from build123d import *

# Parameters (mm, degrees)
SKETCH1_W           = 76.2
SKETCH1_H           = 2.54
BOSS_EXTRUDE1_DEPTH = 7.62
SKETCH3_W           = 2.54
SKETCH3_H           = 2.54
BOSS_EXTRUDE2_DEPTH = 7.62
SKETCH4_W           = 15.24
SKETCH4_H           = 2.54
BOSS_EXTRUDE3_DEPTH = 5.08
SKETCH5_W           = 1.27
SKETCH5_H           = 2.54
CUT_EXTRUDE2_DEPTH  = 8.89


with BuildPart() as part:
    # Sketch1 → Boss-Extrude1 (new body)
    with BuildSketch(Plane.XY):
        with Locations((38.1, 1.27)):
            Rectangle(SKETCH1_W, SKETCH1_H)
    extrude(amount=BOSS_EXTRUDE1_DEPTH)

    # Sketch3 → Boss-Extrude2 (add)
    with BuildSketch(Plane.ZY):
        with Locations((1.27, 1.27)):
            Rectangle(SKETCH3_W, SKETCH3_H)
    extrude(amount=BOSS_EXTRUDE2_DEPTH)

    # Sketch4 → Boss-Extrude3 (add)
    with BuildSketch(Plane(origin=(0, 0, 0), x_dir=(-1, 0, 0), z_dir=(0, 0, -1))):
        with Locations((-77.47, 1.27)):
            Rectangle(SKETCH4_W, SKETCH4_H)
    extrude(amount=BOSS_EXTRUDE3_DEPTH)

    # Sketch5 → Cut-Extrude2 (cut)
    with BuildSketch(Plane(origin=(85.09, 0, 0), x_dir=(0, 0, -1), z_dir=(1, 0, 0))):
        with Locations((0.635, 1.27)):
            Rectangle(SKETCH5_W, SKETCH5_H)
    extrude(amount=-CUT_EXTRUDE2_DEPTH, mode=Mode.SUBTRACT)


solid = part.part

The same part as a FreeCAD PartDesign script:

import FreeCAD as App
import Part
import Sketcher
from FreeCAD import Vector
Q = App.Units.Quantity


def add_polygon(sketch, points):
    """Adds a closed chain of lines whose ends are joined by coincident constraints."""
    first, n = sketch.GeometryCount, len(points)
    for a, b in zip(points, points[1:] + points[:1]):
        sketch.addGeometry(Part.LineSegment(App.Vector(*a, 0), App.Vector(*b, 0)), False)
    for i in range(n):
        sketch.addConstraint(Sketcher.Constraint("Coincident", first + i, 2, first + (i + 1) % n, 1))

doc = App.newDocument("Part")
body = doc.addObject("PartDesign::Body", "Body")

sketch1 = body.newObject("Sketcher::SketchObject", "Sketch")
sketch1.AttachmentSupport = (doc.getObject("XY_Plane"), [""])
sketch1.MapMode = "FlatFace"
add_polygon(sketch1, [(0, 2.54), (0, 0), (76.2, 0), (76.2, 2.54)])
sketch1.addConstraint([
    Sketcher.Constraint("Vertical", 0),
    Sketcher.Constraint("Horizontal", 1),
    Sketcher.Constraint("Vertical", 2),
    Sketcher.Constraint("Horizontal", 3),
    Sketcher.Constraint("Coincident", 0, 2, -1, 1),
    Sketcher.Constraint("DistanceX", 1, 1, 1, 2, Q("3 in")),
    Sketcher.Constraint("DistanceY", 0, 2, 0, 1, Q("0.1 in")),
])
pad1 = body.newObject("PartDesign::Pad", "Pad")
pad1.Profile = sketch1
pad1.Length = Q("0.3 in")

sketch2 = body.newObject("Sketcher::SketchObject", "Sketch001")
sketch2.AttachmentSupport = (doc.getObject("YZ_Plane"), [""])
sketch2.MapMode = "FlatFace"
add_polygon(sketch2, [(2.54, 0), (0, 0), (0, 2.54), (2.54, 2.54)])
sketch2.addConstraint([
    Sketcher.Constraint("Horizontal", 0),
    Sketcher.Constraint("Vertical", 1),
    Sketcher.Constraint("Horizontal", 2),
    Sketcher.Constraint("Vertical", 3),
    Sketcher.Constraint("Coincident", 0, 2, -1, 1),
    Sketcher.Constraint("Equal", 2, 1),
    Sketcher.Constraint("DistanceX", 0, 2, 0, 1, Q("0.1 in")),
])
pad2 = body.newObject("PartDesign::Pad", "Pad001")
pad2.Profile = sketch2
pad2.Length = Q("0.3 in")
pad2.Reversed = True

sketch3 = body.newObject("Sketcher::SketchObject", "Sketch002")
sketch3.AttachmentSupport = (doc.getObject("XY_Plane"), [""])
sketch3.MapMode = "FlatFace"
add_polygon(sketch3, [(85.09, 2.54), (85.09, 0), (69.85, 0), (69.85, 2.54)])
sketch3.addConstraint([
    Sketcher.Constraint("Vertical", 0),
    Sketcher.Constraint("Horizontal", 1),
    Sketcher.Constraint("Vertical", 2),
    Sketcher.Constraint("Horizontal", 3),
    Sketcher.Constraint("PointOnObject", 0, 2, -1),
    Sketcher.Constraint("DistanceX", 1, 2, 1, 1, Q("0.6 in")),
    Sketcher.Constraint("DistanceY", 0, 2, 0, 1, Q("0.1 in")),
    Sketcher.Constraint("DistanceX", -1, 1, 0, 2, Q("3.35 in")),
])
pad3 = body.newObject("PartDesign::Pad", "Pad002")
pad3.Profile = sketch3
pad3.Length = Q("0.2 in")
pad3.Reversed = True

sketch4 = body.newObject("Sketcher::SketchObject", "Sketch003")
sketch4.AttachmentSupport = (doc.getObject("YZ_Plane"), [""])
sketch4.MapMode = "FlatFace"
sketch4.AttachmentOffset = App.Placement(Vector(0, 0, 3.35 * 25.4), App.Rotation())
add_polygon(sketch4, [(2.54, 0), (0, 0), (0, -1.27), (2.54, -1.27)])
sketch4.addConstraint([
    Sketcher.Constraint("Horizontal", 0),
    Sketcher.Constraint("Vertical", 1),
    Sketcher.Constraint("Horizontal", 2),
    Sketcher.Constraint("Vertical", 3),
    Sketcher.Constraint("Coincident", 0, 2, -1, 1),
    Sketcher.Constraint("DistanceX", 0, 2, 0, 1, Q("0.1 in")),
    Sketcher.Constraint("DistanceY", 1, 2, 1, 1, Q("0.05 in")),
])
pocket1 = body.newObject("PartDesign::Pocket", "Pocket")
pocket1.Profile = sketch4
pocket1.Length = Q("0.35 in")

doc.recompute()
